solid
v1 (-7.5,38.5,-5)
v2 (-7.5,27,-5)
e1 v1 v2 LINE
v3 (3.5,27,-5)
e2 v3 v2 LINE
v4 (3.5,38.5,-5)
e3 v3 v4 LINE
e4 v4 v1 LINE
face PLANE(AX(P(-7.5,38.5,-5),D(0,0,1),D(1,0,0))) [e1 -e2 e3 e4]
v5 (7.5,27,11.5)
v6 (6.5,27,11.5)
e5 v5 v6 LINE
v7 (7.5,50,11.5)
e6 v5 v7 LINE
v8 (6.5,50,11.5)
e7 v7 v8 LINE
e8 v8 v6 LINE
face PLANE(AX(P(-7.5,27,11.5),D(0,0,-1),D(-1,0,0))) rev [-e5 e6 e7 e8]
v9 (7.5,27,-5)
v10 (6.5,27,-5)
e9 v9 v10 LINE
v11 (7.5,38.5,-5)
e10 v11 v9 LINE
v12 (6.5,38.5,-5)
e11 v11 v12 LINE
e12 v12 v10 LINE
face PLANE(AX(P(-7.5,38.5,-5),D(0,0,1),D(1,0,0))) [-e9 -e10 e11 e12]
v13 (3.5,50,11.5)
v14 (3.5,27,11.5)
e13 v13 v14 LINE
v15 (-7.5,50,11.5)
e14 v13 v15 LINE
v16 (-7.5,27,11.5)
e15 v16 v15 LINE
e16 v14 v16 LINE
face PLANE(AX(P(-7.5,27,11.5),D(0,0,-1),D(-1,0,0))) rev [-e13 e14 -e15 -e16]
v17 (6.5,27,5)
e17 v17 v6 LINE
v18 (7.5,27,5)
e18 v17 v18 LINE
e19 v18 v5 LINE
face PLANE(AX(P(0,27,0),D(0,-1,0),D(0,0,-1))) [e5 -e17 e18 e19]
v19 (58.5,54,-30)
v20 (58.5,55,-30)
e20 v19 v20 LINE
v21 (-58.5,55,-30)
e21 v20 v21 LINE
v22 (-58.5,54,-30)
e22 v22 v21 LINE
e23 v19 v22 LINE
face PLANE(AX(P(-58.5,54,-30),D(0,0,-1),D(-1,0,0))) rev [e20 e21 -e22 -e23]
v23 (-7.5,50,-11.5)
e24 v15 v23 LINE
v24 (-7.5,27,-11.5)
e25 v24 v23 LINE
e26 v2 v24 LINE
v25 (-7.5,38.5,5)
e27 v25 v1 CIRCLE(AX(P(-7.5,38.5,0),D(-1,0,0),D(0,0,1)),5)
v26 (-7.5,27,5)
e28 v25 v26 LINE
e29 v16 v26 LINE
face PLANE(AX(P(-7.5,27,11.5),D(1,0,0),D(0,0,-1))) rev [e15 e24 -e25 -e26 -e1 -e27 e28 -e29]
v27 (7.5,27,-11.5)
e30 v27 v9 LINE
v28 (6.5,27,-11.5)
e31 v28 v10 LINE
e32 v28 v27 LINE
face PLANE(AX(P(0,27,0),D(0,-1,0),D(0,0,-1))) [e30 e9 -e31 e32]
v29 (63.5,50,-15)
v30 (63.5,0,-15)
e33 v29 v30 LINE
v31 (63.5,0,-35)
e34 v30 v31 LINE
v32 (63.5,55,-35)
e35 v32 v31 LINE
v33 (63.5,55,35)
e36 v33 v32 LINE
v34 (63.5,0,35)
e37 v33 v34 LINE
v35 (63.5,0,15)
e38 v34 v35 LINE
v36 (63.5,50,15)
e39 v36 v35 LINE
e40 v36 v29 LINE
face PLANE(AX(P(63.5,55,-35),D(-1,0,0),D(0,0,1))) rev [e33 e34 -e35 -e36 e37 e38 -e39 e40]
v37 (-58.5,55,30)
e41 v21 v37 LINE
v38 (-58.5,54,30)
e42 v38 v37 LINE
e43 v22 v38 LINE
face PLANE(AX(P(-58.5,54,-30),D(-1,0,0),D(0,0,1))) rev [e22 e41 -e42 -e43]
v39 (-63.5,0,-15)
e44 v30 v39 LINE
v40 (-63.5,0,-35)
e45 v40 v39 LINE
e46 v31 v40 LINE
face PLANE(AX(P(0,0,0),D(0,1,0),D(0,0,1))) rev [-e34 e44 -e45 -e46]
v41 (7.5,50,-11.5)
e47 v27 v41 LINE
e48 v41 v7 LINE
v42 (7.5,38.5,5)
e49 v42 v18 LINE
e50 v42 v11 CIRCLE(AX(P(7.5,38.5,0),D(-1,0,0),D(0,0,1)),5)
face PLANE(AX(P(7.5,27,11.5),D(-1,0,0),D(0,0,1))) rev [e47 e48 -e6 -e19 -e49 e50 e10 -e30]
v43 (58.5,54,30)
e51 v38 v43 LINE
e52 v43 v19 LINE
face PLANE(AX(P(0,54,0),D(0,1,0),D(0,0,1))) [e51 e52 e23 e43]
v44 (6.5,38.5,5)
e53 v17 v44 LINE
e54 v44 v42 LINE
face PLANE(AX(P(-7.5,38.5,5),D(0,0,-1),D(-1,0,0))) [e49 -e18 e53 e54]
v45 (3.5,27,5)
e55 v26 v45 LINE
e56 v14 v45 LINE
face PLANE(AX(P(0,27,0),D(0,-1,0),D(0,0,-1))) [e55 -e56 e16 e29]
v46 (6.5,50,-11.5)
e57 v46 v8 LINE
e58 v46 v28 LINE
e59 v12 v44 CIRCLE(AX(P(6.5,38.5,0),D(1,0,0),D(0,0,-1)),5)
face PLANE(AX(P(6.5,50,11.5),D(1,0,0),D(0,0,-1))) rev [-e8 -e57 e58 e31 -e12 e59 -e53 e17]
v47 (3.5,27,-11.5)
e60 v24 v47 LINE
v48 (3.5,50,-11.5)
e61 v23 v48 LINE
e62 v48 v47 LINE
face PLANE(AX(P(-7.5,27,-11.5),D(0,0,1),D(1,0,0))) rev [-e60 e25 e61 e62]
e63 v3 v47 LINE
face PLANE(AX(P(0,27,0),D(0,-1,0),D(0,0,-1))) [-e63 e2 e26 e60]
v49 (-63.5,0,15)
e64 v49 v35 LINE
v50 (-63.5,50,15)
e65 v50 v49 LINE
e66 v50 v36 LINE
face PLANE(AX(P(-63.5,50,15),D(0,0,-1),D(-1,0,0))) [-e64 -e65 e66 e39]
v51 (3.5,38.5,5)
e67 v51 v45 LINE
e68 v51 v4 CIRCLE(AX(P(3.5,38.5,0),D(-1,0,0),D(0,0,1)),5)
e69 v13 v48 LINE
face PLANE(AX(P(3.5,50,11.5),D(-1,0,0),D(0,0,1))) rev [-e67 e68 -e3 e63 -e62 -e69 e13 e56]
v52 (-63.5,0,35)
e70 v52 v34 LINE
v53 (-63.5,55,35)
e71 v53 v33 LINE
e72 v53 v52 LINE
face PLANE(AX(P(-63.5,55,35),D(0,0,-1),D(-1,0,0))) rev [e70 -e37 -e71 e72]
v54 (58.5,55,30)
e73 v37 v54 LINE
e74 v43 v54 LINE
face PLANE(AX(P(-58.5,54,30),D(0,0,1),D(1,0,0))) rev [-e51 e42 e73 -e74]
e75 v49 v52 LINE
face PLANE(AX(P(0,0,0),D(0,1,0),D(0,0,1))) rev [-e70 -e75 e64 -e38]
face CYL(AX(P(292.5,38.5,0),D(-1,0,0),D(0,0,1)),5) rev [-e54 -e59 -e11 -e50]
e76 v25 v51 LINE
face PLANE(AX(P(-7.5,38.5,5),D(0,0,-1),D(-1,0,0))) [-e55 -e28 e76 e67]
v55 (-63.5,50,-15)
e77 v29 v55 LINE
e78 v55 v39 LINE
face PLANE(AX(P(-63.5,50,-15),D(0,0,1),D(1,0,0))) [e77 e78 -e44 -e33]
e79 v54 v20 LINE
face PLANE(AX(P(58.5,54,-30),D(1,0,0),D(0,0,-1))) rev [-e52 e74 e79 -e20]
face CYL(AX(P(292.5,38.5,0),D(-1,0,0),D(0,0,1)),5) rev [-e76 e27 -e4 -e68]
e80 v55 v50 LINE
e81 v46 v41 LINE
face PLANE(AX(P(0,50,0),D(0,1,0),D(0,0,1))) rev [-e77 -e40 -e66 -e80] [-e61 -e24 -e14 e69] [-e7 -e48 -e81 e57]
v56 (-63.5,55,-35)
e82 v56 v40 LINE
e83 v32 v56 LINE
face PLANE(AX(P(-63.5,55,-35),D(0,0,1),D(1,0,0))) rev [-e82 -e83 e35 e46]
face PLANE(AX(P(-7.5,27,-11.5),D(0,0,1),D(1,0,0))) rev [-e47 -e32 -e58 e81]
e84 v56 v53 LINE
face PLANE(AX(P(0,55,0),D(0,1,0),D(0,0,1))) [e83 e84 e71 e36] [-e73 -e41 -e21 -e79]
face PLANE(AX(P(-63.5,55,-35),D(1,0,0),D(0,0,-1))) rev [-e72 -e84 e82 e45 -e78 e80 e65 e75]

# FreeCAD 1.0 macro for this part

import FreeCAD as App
import Part
import Sketcher

V = App.Vector
Q = App.Units.Quantity


def add_polygon(sketch, points):
    """Adds a closed chain of lines whose ends are joined by coincident constraints."""
    first, n = sketch.GeometryCount, len(points)
    for a, b in zip(points, points[1:] + points[:1]):
        sketch.addGeometry(Part.LineSegment(App.Vector(*a, 0), App.Vector(*b, 0)), False)
    for i in range(n):
        sketch.addConstraint(Sketcher.Constraint("Coincident", first + i, 2, first + (i + 1) % n, 1))

doc = App.newDocument("Part")
body = doc.addObject("PartDesign::Body", "Body")

sketch1 = body.newObject("Sketcher::SketchObject", "Sketch")
sketch1.AttachmentSupport = (doc.getObject("XZ_Plane"), [""])
sketch1.MapMode = "FlatFace"
add_polygon(sketch1, [(-64, -35), (-64, 35), (64, 35), (64, -35)])
sketch1.addConstraint([
    Sketcher.Constraint("Vertical", 0),
    Sketcher.Constraint("Horizontal", 1),
    Sketcher.Constraint("Vertical", 2),
    Sketcher.Constraint("Horizontal", 3),
    Sketcher.Constraint("Symmetric", 0, 2, 2, 2, -1, 1),
    Sketcher.Constraint("DistanceX", 1, 1, 1, 2, Q("127 mm")),
    Sketcher.Constraint("DistanceY", 0, 1, 0, 2, Q("70 mm")),
])
pad1 = body.newObject("PartDesign::Pad", "Pad")
pad1.Profile = sketch1
pad1.Length = 55
pad1.Reversed = True

sketch2 = body.newObject("Sketcher::SketchObject", "Sketch001")
sketch2.AttachmentSupport = (doc.getObject("XZ_Plane"), [""])
sketch2.MapMode = "FlatFace"
add_polygon(sketch2, [(-64, -15), (-64, 15), (64, 15), (64, -15)])
sketch2.addConstraint([
    Sketcher.Constraint("Vertical", 0),
    Sketcher.Constraint("Horizontal", 1),
    Sketcher.Constraint("Vertical", 2),
    Sketcher.Constraint("Horizontal", 3),
    Sketcher.Constraint("Symmetric", 0, 2, 2, 2, -1, 1),
    Sketcher.Constraint("DistanceX", 1, 1, 1, 2, Q("127 mm")),
    Sketcher.Constraint("DistanceY", 0, 1, 0, 2, Q("30 mm")),
])
pocket1 = body.newObject("PartDesign::Pocket", "Pocket")
pocket1.Profile = sketch2
pocket1.Length = 50

sketch3 = body.newObject("Sketcher::SketchObject", "Sketch002")
sketch3.AttachmentSupport = (doc.getObject("XZ_Plane"), [""])
sketch3.MapMode = "FlatFace"
sketch3.AttachmentOffset = App.Placement(V(0, 0, -50), App.Rotation())
add_polygon(sketch3, [(-8, 12), (-8, -12), (8, -12), (8, 12)])
sketch3.addConstraint([
    Sketcher.Constraint("Vertical", 0),
    Sketcher.Constraint("Horizontal", 1),
    Sketcher.Constraint("Vertical", 2),
    Sketcher.Constraint("Horizontal", 3),
    Sketcher.Constraint("Symmetric", 0, 2, 2, 2, -1, 1),
    Sketcher.Constraint("DistanceX", 1, 1, 1, 2, Q("15 mm")),
    Sketcher.Constraint("DistanceY", 0, 2, 0, 1, Q("23 mm")),
])
pad2 = body.newObject("PartDesign::Pad", "Pad001")
pad2.Profile = sketch3
pad2.Length = 23

sketch4 = body.newObject("Sketcher::SketchObject", "Sketch003")
sketch4.AttachmentSupport = (doc.getObject("XZ_Plane"), [""])
sketch4.MapMode = "FlatFace"
sketch4.AttachmentOffset = App.Placement(V(0, 0, -27), App.Rotation())
add_polygon(sketch4, [(3.5, 11.5), (3.5, -11.5), (6.5, -11.5), (6.5, 11.5)])
sketch4.addConstraint([
    Sketcher.Constraint("Vertical", 0),
    Sketcher.Constraint("Horizontal", 1),
    Sketcher.Constraint("Vertical", 2),
    Sketcher.Constraint("Horizontal", 3),
    Sketcher.Constraint("DistanceX", 1, 1, 1, 2, Q("3 mm")),
    Sketcher.Constraint("DistanceY", 0, 2, 0, 1, Q("23 mm")),
    Sketcher.Constraint("DistanceX", -1, 1, 0, 2, Q("3.5 mm")),
    Sketcher.Constraint("DistanceY", 0, 2, -1, 1, Q("11.5 mm")),
])
pocket2 = body.newObject("PartDesign::Pocket", "Pocket001")
pocket2.Profile = sketch4
pocket2.Length = 23

sketch5 = body.newObject("Sketcher::SketchObject", "Sketch004")
sketch5.AttachmentSupport = (doc.getObject("XZ_Plane"), [""])
sketch5.MapMode = "FlatFace"
sketch5.AttachmentOffset = App.Placement(V(0, 0, -27), App.Rotation())
add_polygon(sketch5, [(-8, -5), (-8, 5), (8, 5), (8, -5)])
sketch5.addConstraint([
    Sketcher.Constraint("Vertical", 0),
    Sketcher.Constraint("Horizontal", 1),
    Sketcher.Constraint("Vertical", 2),
    Sketcher.Constraint("Horizontal", 3),
    Sketcher.Constraint("Symmetric", 0, 2, 2, 2, -1, 1),
    Sketcher.Constraint("DistanceX", 1, 1, 1, 2, Q("15 mm")),
    Sketcher.Constraint("DistanceY", 0, 1, 0, 2, Q("10 mm")),
])
pocket3 = body.newObject("PartDesign::Pocket", "Pocket002")
pocket3.Profile = sketch5
pocket3.Length = 11.5

sketch6 = body.newObject("Sketcher::SketchObject", "Sketch005")
sketch6.AttachmentSupport = (doc.getObject("XZ_Plane"), [""])
sketch6.MapMode = "FlatFace"
sketch6.AttachmentOffset = App.Placement(V(0, 0, -55), App.Rotation())
add_polygon(sketch6, [(-58, -30), (-58, 30), (58, 30), (58, -30)])
sketch6.addConstraint([
    Sketcher.Constraint("Vertical", 0),
    Sketcher.Constraint("Horizontal", 1),
    Sketcher.Constraint("Vertical", 2),
    Sketcher.Constraint("Horizontal", 3),
    Sketcher.Constraint("Symmetric", 0, 2, 2, 2, -1, 1),
    Sketcher.Constraint("DistanceX", 1, 1, 1, 2, Q("117 mm")),
    Sketcher.Constraint("DistanceY", 0, 1, 0, 2, Q("60 mm")),
])
pocket4 = body.newObject("PartDesign::Pocket", "Pocket003")
pocket4.Profile = sketch6
pocket4.Length = 1
pocket4.Reversed = True

sketch7 = body.newObject("Sketcher::SketchObject", "Sketch006")
sketch7.AttachmentSupport = (doc.getObject("YZ_Plane"), [""])
sketch7.MapMode = "FlatFace"
sketch7.AttachmentOffset = App.Placement(V(0, 0, -7.5), App.Rotation())
sketch7.addGeometry(Part.Circle(V(38, 0, 0), V(0, 0, 1), 5), False)
sketch7.addConstraint([
    Sketcher.Constraint("PointOnObject", 0, 3, -1),
    Sketcher.Constraint("Diameter", 0, Q("10 mm")),
    Sketcher.Constraint("DistanceX", -1, 1, 0, 3, Q("38.5 mm")),
])
pocket5 = body.newObject("PartDesign::Pocket", "Pocket004")
pocket5.Profile = sketch7
pocket5.Length = 300
pocket5.Reversed = True

doc.recompute()
